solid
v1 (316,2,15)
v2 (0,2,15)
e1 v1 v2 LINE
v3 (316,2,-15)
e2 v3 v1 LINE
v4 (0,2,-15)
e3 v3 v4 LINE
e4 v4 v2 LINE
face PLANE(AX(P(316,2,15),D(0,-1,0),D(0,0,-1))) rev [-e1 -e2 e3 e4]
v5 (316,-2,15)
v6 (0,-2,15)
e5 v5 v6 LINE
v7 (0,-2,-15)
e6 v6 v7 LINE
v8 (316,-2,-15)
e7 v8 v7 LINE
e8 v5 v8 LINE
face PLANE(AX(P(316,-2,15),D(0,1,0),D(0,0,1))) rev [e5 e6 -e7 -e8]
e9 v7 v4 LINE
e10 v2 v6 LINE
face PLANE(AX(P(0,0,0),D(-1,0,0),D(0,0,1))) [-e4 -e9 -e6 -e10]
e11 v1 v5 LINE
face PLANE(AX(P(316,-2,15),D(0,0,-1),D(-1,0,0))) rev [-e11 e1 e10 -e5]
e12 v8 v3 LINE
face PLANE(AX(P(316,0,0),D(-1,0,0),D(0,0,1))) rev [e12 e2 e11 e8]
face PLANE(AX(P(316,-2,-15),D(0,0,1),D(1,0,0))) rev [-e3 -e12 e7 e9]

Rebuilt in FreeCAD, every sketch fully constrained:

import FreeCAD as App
import Part
import Sketcher
from FreeCAD import Vector


def add_polygon(sketch, points):
    """Adds a closed chain of lines whose ends are joined by coincident constraints."""
    first, n = sketch.GeometryCount, len(points)
    for a, b in zip(points, points[1:] + points[:1]):
        sketch.addGeometry(Part.LineSegment(App.Vector(*a, 0), App.Vector(*b, 0)), False)
    for i in range(n):
        sketch.addConstraint(Sketcher.Constraint("Coincident", first + i, 2, first + (i + 1) % n, 1))

doc = App.newDocument("Part")
body = doc.addObject("PartDesign::Body", "Body")

# Sketch on YZ plane
sketch1 = doc.addObject("Sketcher::SketchObject", "Sketch")
body.addObject(sketch1)
sketch1.AttachmentSupport = (doc.YZ_Plane, [""])
sketch1.MapMode = "FlatFace"
add_polygon(sketch1, [(2, 15), (-2, 15), (-2, -15), (2, -15)])  # lines 0-3
sketch1.addConstraint([
    Sketcher.Constraint("Horizontal", 0),
    Sketcher.Constraint("Vertical", 1),
    Sketcher.Constraint("Horizontal", 2),
    Sketcher.Constraint("Vertical", 3),
    Sketcher.Constraint("Symmetric", 0, 2, 2, 2, -1, 1),
    Sketcher.Constraint("DistanceX", 0, 2, 0, 1, 4.0),
    Sketcher.Constraint("DistanceY", 1, 2, 1, 1, 30.0),
])
pad1 = doc.addObject("PartDesign::Pad", "Pad")
body.addObject(pad1)
pad1.Profile = sketch1
pad1.Length = 316

doc.recompute()
